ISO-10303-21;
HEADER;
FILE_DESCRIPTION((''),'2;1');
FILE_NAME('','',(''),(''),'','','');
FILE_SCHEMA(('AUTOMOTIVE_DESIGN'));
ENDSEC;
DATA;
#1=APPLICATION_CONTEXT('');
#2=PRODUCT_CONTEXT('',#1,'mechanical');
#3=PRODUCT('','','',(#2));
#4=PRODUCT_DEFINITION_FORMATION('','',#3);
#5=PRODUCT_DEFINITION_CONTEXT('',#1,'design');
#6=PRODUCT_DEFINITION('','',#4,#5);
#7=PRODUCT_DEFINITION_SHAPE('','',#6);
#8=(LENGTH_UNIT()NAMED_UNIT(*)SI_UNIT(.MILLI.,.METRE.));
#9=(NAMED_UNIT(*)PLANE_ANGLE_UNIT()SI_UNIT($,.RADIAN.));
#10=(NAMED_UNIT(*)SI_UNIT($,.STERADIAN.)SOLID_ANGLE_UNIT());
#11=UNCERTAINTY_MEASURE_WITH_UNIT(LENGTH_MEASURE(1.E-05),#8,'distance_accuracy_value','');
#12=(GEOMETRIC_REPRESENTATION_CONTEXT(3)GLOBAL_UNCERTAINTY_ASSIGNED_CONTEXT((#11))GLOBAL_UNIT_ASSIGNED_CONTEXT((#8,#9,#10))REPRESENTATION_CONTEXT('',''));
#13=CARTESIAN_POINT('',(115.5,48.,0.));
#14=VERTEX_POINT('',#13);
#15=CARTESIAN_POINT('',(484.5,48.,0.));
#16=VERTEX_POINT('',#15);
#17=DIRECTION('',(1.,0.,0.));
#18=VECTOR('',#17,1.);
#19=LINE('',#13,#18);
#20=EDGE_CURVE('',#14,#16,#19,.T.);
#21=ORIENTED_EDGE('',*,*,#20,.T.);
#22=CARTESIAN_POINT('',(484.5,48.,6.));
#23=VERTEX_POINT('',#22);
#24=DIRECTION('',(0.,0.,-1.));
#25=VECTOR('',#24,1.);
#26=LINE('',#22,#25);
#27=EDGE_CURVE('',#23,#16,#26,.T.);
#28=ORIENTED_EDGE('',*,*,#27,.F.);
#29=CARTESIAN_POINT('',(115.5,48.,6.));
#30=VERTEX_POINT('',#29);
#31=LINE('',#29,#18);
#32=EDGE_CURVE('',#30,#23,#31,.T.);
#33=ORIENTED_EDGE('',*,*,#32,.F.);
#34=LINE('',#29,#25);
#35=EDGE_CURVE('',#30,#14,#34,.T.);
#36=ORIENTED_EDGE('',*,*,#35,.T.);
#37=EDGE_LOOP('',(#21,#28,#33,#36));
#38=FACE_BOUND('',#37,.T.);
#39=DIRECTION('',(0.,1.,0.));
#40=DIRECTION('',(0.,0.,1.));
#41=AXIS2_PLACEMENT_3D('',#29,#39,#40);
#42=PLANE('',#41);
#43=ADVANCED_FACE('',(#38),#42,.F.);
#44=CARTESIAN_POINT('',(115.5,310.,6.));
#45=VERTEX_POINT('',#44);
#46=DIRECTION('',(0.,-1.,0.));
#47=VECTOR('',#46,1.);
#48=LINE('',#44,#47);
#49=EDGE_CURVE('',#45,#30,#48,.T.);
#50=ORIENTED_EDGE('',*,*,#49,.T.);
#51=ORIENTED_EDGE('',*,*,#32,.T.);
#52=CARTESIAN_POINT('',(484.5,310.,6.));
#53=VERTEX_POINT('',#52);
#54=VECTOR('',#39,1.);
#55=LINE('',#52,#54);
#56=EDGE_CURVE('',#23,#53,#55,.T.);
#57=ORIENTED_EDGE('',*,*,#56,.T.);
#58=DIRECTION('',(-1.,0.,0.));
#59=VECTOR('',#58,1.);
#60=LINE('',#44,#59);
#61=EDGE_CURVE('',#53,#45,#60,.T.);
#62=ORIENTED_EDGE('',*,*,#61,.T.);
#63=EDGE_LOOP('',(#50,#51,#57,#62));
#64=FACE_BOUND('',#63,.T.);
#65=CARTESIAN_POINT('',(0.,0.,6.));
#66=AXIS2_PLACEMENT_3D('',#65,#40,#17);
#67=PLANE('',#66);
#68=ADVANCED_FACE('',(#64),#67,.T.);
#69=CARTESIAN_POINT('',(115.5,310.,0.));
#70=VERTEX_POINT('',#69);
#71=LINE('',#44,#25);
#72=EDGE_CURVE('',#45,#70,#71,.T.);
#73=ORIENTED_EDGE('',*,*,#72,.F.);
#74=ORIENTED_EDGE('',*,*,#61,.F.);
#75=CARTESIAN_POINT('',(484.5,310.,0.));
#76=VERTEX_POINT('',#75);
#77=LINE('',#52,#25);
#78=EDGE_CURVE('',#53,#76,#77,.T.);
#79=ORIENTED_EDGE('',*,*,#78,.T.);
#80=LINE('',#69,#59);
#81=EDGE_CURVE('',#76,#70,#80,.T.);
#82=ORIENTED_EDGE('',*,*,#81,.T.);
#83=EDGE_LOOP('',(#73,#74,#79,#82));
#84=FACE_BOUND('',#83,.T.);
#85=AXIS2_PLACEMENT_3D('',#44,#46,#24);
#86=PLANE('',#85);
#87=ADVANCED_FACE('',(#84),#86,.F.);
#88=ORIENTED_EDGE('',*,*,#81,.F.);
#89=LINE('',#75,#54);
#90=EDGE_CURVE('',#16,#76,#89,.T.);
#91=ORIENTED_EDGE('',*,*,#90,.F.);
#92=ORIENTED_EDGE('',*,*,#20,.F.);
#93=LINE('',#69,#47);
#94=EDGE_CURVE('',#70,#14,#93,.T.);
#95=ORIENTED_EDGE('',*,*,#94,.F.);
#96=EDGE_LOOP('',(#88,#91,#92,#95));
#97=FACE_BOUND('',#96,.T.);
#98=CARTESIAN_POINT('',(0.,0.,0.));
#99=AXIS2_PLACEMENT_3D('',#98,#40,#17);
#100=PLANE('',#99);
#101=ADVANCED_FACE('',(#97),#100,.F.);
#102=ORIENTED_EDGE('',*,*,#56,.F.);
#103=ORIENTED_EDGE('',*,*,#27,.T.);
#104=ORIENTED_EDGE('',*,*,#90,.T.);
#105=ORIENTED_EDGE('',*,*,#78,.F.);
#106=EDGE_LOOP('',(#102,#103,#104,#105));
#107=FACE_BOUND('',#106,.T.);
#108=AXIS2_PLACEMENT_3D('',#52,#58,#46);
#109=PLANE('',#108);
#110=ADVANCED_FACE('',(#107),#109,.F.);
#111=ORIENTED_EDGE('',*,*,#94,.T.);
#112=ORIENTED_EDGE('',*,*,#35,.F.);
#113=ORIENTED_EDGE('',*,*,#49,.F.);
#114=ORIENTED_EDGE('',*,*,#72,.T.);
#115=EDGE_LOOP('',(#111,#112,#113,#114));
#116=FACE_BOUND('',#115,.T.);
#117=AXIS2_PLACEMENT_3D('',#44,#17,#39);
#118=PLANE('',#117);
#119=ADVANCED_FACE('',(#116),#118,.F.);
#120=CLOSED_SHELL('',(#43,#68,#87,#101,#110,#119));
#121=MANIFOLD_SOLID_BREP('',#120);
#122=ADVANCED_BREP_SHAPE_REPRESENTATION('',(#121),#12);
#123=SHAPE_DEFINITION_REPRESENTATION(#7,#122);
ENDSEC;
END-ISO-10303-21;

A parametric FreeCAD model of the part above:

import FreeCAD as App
import Part
import Sketcher
Q = App.Units.Quantity

doc = App.newDocument("Part")
body = doc.addObject("PartDesign::Body", "Body")

# Sketch on XY plane
sketch1 = body.newObject("Sketcher::SketchObject", "Sketch")
sketch1.AttachmentSupport = (doc.getObject("XY_Plane"), [""])
sketch1.MapMode = "FlatFace"
sketch1.addGeometry([
    Part.LineSegment(App.Vector(115.5, 310, 0), App.Vector(115.5, 48, 0)),
    Part.LineSegment(App.Vector(115.5, 48, 0), App.Vector(484.5, 48, 0)),
    Part.LineSegment(App.Vector(484.5, 48, 0), App.Vector(484.5, 310, 0)),
    Part.LineSegment(App.Vector(484.5, 310, 0), App.Vector(115.5, 310, 0)),
], False)
sketch1.addConstraint([
    Sketcher.Constraint("Coincident", 0, 2, 1, 1),
    Sketcher.Constraint("Coincident", 1, 2, 2, 1),
    Sketcher.Constraint("Coincident", 2, 2, 3, 1),
    Sketcher.Constraint("Coincident", 3, 2, 0, 1),
    Sketcher.Constraint("Vertical", 0),
    Sketcher.Constraint("Horizontal", 1),
    Sketcher.Constraint("Vertical", 2),
    Sketcher.Constraint("Horizontal", 3),
    Sketcher.Constraint("DistanceX", 1, 1, 1, 2, Q("369 mm")),
    Sketcher.Constraint("DistanceY", 0, 2, 0, 1, Q("262 mm")),
    Sketcher.Constraint("DistanceY", -1, 1, 0, 2, Q("48 mm")),
    Sketcher.Constraint("DistanceX", -1, 1, 0, 2, Q("115.5 mm")),
])
pad1 = body.newObject("PartDesign::Pad", "Pad")
pad1.Profile = sketch1
pad1.Length = 6

doc.recompute()
